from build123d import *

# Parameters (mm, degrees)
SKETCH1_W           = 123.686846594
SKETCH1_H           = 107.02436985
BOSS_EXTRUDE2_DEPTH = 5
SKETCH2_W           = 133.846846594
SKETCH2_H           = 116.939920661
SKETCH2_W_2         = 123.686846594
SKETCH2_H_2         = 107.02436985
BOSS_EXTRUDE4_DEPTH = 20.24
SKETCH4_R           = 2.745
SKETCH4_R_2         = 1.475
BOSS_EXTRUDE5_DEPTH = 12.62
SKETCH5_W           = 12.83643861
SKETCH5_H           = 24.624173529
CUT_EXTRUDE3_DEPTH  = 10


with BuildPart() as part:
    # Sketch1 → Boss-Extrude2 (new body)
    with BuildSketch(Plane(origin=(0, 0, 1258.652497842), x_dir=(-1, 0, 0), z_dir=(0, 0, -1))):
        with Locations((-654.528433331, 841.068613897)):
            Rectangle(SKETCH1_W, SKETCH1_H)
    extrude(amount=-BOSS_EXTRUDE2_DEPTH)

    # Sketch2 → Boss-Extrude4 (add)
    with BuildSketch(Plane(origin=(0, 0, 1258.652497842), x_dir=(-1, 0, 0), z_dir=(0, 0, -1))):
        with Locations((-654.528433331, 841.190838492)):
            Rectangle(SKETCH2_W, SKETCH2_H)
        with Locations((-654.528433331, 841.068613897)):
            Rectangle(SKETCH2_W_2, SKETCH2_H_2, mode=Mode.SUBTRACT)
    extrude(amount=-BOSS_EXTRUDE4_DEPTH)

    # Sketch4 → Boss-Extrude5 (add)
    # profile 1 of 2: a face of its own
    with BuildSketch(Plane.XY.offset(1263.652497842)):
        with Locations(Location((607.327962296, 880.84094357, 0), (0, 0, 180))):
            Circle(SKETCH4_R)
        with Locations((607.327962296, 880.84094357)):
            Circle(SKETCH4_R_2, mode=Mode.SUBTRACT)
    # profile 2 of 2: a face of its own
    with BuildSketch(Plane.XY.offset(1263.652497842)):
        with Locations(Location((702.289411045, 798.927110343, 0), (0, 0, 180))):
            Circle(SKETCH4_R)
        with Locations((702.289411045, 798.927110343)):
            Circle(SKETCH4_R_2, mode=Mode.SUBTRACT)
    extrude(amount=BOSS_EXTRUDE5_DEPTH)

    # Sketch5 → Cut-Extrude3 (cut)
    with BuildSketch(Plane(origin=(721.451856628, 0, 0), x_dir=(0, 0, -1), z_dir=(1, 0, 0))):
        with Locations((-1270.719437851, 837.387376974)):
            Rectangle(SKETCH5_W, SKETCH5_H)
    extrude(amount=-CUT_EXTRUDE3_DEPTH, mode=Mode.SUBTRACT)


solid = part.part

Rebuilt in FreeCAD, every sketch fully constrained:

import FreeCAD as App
import Part
import Sketcher
from FreeCAD import Vector
Q = App.Units.Quantity


def add_polygon(sketch, points):
    """Adds a closed chain of lines whose ends are joined by coincident constraints."""
    first, n = sketch.GeometryCount, len(points)
    for a, b in zip(points, points[1:] + points[:1]):
        sketch.addGeometry(Part.LineSegment(App.Vector(*a, 0), App.Vector(*b, 0)), False)
    for i in range(n):
        sketch.addConstraint(Sketcher.Constraint("Coincident", first + i, 2, first + (i + 1) % n, 1))

doc = App.newDocument("Part")
body = doc.addObject("PartDesign::Body", "Body")

# Sketch on XY plane
sketch1 = doc.addObject("Sketcher::SketchObject", "Sketch")
body.addObject(sketch1)
sketch1.AttachmentSupport = (doc.XY_Plane, [""])
sketch1.MapMode = "FlatFace"
sketch1.AttachmentOffset = App.Placement(Vector(0, 0, 1258.652498), App.Rotation())
add_polygon(sketch1, [(716, 895), (716, 788), (593, 788), (593, 895)])  # lines 0-3
sketch1.addConstraint(Sketcher.Constraint("Vertical", 0))
sketch1.addConstraint(Sketcher.Constraint("Horizontal", 1))
sketch1.addConstraint(Sketcher.Constraint("Vertical", 2))
sketch1.addConstraint(Sketcher.Constraint("Horizontal", 3))
sketch1.addConstraint(Sketcher.Constraint("DistanceY", 0, 2, 0, 1, Q("107.02437 mm")))
sketch1.addConstraint(Sketcher.Constraint("DistanceY", -1, 1, 2, 2, Q("894.580799 mm")))
sketch1.addConstraint(Sketcher.Constraint("DistanceX", 1, 2, 1, 1, Q("123.686847 mm")))
sketch1.addConstraint(Sketcher.Constraint("DistanceX", -1, 1, 1, 2, Q("592.68501 mm")))
pad1 = doc.addObject("PartDesign::Pad", "Pad")
body.addObject(pad1)
pad1.Profile = sketch1
pad1.Length = 5

# Sketch on XY plane
sketch2 = doc.addObject("Sketcher::SketchObject", "Sketch001")
body.addObject(sketch2)
sketch2.AttachmentSupport = (doc.XY_Plane, [""])
sketch2.MapMode = "FlatFace"
sketch2.AttachmentOffset = App.Placement(Vector(0, 0, 1258.652498), App.Rotation())
add_polygon(sketch2, [(721, 900), (721, 783), (588, 783), (588, 900)])  # lines 0-3
add_polygon(sketch2, [(593, 788), (716, 788), (716, 895), (593, 895)])  # lines 4-7
sketch2.addConstraint(Sketcher.Constraint("Vertical", 0))
sketch2.addConstraint(Sketcher.Constraint("Horizontal", 1))
sketch2.addConstraint(Sketcher.Constraint("Vertical", 2))
sketch2.addConstraint(Sketcher.Constraint("Horizontal", 3))
sketch2.addConstraint(Sketcher.Constraint("Horizontal", 4))
sketch2.addConstraint(Sketcher.Constraint("Vertical", 5))
sketch2.addConstraint(Sketcher.Constraint("Horizontal", 6))
sketch2.addConstraint(Sketcher.Constraint("Vertical", 7))
sketch2.addConstraint(Sketcher.Constraint("DistanceX", 4, 2, 0, 2, Q("5.08 mm")))
sketch2.addConstraint(Sketcher.Constraint("DistanceY", 5, 2, 3, 2, Q("5.08 mm")))
sketch2.addConstraint(Sketcher.Constraint("DistanceX", 2, 2, 6, 2, Q("5.08 mm")))
sketch2.addConstraint(Sketcher.Constraint("DistanceY", 0, 2, 0, 1, Q("116.939921 mm")))
sketch2.addConstraint(Sketcher.Constraint("DistanceY", 5, 1, 5, 2, Q("107.02437 mm")))
sketch2.addConstraint(Sketcher.Constraint("DistanceY", -1, 1, 2, 2, Q("899.660799 mm")))
sketch2.addConstraint(Sketcher.Constraint("DistanceX", 1, 2, 1, 1, Q("133.846847 mm")))
sketch2.addConstraint(Sketcher.Constraint("DistanceX", -1, 1, 1, 2, Q("587.60501 mm")))
pad2 = doc.addObject("PartDesign::Pad", "Pad001")
body.addObject(pad2)
pad2.Profile = sketch2
pad2.Length = 20.24

# Sketch on XY plane
sketch3 = doc.addObject("Sketcher::SketchObject", "Sketch002")
body.addObject(sketch3)
sketch3.AttachmentSupport = (doc.XY_Plane, [""])
sketch3.MapMode = "FlatFace"
sketch3.AttachmentOffset = App.Placement(Vector(0, 0, 1263.652498), App.Rotation())
sketch3.addGeometry(Part.Circle(Vector(607.3, 880.8, 0), Vector(0, 0, 1), 2.7), False)
sketch3.addGeometry(Part.Circle(Vector(607.3, 880.8, 0), Vector(0, 0, 1), 1.5), False)
sketch3.addGeometry(Part.Circle(Vector(702.3, 798.9, 0), Vector(0, 0, 1), 2.7), False)
sketch3.addGeometry(Part.Circle(Vector(702.3, 798.9, 0), Vector(0, 0, 1), 1.5), False)
sketch3.addConstraint(Sketcher.Constraint("Coincident", 1, 3, 0, 3))
sketch3.addConstraint(Sketcher.Constraint("Coincident", 3, 3, 2, 3))
sketch3.addConstraint(Sketcher.Constraint("Equal", 0, 2))
sketch3.addConstraint(Sketcher.Constraint("Equal", 1, 3))
sketch3.addConstraint(Sketcher.Constraint("Diameter", 0, Q("5.49 mm")))
sketch3.addConstraint(Sketcher.Constraint("Diameter", 1, Q("2.95 mm")))
sketch3.addConstraint(Sketcher.Constraint("DistanceX", -1, 1, 2, 3, Q("702.289411 mm")))
sketch3.addConstraint(Sketcher.Constraint("DistanceY", -1, 1, 2, 3, Q("798.92711 mm")))
sketch3.addConstraint(Sketcher.Constraint("DistanceX", 0, 3, 2, 3, Q("94.961449 mm")))
sketch3.addConstraint(Sketcher.Constraint("DistanceY", -1, 1, 0, 3, Q("880.840944 mm")))
pad3 = doc.addObject("PartDesign::Pad", "Pad002")
body.addObject(pad3)
pad3.Profile = sketch3
pad3.Length = 12.62

# Sketch on YZ plane
sketch4 = doc.addObject("Sketcher::SketchObject", "Sketch003")
body.addObject(sketch4)
sketch4.AttachmentSupport = (doc.YZ_Plane, [""])
sketch4.MapMode = "FlatFace"
sketch4.AttachmentOffset = App.Placement(Vector(0, 0, 721.451857), App.Rotation())
add_polygon(sketch4, [(850, 1277), (825, 1277), (825, 1264), (850, 1264)])  # lines 0-3
sketch4.addConstraint(Sketcher.Constraint("Horizontal", 0))
sketch4.addConstraint(Sketcher.Constraint("Vertical", 1))
sketch4.addConstraint(Sketcher.Constraint("Horizontal", 2))
sketch4.addConstraint(Sketcher.Constraint("Vertical", 3))
sketch4.addConstraint(Sketcher.Constraint("DistanceY", 1, 2, 1, 1, Q("12.836439 mm")))
sketch4.addConstraint(Sketcher.Constraint("DistanceX", 0, 2, 0, 1, Q("24.624174 mm")))
sketch4.addConstraint(Sketcher.Constraint("DistanceX", -1, 1, 0, 2, Q("825.07529 mm")))
sketch4.addConstraint(Sketcher.Constraint("DistanceY", -1, 1, 1, 2, Q("1264.301219 mm")))
pocket1 = doc.addObject("PartDesign::Pocket", "Pocket")
body.addObject(pocket1)
pocket1.Profile = sketch4
pocket1.Length = 10

doc.recompute()
